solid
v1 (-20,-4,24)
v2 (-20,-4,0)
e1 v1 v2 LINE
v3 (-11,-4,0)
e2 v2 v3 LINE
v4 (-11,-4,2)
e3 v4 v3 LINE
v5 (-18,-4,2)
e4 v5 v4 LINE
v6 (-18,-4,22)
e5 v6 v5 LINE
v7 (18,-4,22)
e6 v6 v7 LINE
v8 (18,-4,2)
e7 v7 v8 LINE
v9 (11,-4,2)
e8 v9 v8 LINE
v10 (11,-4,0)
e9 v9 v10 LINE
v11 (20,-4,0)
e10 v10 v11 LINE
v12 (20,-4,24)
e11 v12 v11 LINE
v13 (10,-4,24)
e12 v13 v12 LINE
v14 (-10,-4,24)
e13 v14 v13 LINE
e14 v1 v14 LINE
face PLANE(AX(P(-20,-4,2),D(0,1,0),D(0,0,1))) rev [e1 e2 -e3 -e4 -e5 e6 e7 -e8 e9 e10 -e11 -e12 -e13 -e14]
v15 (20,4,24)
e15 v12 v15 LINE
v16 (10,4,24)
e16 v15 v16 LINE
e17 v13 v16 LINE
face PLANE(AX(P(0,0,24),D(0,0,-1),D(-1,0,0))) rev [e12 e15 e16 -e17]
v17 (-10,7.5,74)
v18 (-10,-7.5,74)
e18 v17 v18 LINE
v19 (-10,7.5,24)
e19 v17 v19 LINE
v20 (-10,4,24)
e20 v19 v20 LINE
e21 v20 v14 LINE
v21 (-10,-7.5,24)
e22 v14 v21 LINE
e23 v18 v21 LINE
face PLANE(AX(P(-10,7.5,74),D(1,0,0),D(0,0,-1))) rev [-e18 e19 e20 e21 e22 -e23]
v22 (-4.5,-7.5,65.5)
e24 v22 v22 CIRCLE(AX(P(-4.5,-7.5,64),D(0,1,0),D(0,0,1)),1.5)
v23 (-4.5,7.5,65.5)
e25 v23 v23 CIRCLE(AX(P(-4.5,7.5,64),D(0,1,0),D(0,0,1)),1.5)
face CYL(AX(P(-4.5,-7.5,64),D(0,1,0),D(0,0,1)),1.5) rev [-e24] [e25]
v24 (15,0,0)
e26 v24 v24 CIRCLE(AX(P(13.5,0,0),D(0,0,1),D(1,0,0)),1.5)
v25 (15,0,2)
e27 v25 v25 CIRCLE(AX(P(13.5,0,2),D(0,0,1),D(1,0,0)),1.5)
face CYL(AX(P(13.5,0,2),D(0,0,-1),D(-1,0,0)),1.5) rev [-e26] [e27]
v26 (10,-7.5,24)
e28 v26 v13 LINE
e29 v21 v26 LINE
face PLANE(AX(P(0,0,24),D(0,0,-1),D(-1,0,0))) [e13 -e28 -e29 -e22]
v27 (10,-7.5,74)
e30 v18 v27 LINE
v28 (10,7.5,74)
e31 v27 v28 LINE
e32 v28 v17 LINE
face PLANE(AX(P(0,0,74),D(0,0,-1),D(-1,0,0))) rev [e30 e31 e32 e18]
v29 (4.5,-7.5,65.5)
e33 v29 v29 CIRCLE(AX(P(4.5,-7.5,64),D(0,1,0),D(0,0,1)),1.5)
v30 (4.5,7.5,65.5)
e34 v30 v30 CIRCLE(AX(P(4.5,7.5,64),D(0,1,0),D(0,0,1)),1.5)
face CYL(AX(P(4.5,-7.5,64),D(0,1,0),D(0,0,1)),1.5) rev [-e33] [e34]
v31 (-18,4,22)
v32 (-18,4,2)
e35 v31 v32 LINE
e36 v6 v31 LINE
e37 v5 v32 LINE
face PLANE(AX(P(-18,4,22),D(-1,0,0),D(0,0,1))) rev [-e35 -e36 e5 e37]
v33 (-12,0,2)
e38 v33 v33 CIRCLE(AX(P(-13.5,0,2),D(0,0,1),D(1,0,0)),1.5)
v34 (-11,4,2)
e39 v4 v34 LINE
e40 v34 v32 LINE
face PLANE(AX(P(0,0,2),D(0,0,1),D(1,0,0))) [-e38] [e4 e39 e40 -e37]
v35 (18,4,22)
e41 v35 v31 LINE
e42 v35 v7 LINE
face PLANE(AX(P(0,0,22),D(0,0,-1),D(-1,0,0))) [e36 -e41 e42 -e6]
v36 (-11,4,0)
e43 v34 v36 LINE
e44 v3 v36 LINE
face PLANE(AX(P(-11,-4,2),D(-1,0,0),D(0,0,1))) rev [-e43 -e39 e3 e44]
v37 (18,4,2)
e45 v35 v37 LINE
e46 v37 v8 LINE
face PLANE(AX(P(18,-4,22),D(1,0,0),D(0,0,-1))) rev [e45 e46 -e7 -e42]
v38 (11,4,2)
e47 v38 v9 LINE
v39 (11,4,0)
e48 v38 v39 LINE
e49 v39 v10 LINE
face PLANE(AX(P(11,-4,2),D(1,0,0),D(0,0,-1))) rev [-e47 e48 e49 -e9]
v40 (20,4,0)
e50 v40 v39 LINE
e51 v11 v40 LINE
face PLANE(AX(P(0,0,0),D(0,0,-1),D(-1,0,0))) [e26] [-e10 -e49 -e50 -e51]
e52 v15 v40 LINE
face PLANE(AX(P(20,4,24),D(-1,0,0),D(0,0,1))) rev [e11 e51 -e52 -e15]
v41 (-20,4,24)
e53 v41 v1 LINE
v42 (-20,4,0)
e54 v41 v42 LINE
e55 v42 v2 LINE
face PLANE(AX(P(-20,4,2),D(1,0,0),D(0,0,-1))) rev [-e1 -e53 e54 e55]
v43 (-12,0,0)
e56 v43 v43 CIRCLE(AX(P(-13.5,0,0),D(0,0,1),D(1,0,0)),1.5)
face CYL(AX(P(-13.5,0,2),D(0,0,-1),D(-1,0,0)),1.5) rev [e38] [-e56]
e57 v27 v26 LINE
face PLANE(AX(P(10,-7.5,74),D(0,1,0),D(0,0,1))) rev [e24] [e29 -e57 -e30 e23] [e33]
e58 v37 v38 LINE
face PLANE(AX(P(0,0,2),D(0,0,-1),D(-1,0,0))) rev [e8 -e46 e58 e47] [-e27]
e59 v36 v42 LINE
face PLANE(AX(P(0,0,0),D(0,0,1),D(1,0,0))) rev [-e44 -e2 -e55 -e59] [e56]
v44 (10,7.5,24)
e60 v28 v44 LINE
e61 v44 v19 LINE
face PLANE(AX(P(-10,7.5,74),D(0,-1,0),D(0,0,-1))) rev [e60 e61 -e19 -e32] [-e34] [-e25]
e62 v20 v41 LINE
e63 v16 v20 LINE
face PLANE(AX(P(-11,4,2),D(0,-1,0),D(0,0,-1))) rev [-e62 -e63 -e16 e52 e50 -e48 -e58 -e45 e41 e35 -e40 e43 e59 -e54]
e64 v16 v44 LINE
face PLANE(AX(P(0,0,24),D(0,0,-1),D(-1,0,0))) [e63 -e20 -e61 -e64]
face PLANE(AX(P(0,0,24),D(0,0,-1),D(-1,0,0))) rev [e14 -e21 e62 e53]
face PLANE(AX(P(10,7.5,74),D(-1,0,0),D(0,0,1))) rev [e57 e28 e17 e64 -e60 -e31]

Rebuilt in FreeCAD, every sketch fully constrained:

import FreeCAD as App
import Part
import Sketcher

V = App.Vector


def add_polygon(sketch, points):
    """Adds a closed chain of lines whose ends are joined by coincident constraints."""
    first, n = sketch.GeometryCount, len(points)
    for a, b in zip(points, points[1:] + points[:1]):
        sketch.addGeometry(Part.LineSegment(App.Vector(*a, 0), App.Vector(*b, 0)), False)
    for i in range(n):
        sketch.addConstraint(Sketcher.Constraint("Coincident", first + i, 2, first + (i + 1) % n, 1))

doc = App.newDocument("Part")
body = doc.addObject("PartDesign::Body", "Body")

sketch1 = body.newObject("Sketcher::SketchObject", "Sketch")
sketch1.AttachmentSupport = (doc.getObject("XY_Plane"), [""])
sketch1.MapMode = "FlatFace"
add_polygon(sketch1, [(-20, 4), (-20, -4), (-11, -4), (-11, 4)])
sketch1.addGeometry(Part.Circle(V(-13.5, 0, 0), V(0, 0, 1), 1.5), False)
sketch1.addConstraint(Sketcher.Constraint("Vertical", 0))
sketch1.addConstraint(Sketcher.Constraint("Horizontal", 1))
sketch1.addConstraint(Sketcher.Constraint("Vertical", 2))
sketch1.addConstraint(Sketcher.Constraint("Horizontal", 3))
sketch1.addConstraint(Sketcher.Constraint("PointOnObject", 4, 3, -1))
sketch1.addConstraint(Sketcher.Constraint("Diameter", 4, 3.0))
sketch1.addConstraint(Sketcher.Constraint("DistanceX", 1, 1, 1, 2, 9.0))
sketch1.addConstraint(Sketcher.Constraint("DistanceY", 0, 2, 0, 1, 8.0))
sketch1.addConstraint(Sketcher.Constraint("DistanceX", 0, 2, -1, 1, 20.0))
sketch1.addConstraint(Sketcher.Constraint("DistanceY", 0, 2, -1, 1, 4.0))
sketch1.addConstraint(Sketcher.Constraint("DistanceX", 4, 3, -1, 1, 13.5))
pad1 = body.newObject("PartDesign::Pad", "Pad")
pad1.Profile = sketch1
pad1.Length = 2
body2 = doc.addObject("PartDesign::Body", "Body001")

sketch2 = body2.newObject("Sketcher::SketchObject", "Sketch001")
sketch2.AttachmentSupport = (doc.getObject("XY_Plane001"), [""])
sketch2.MapMode = "FlatFace"
add_polygon(sketch2, [(11, 4), (11, -4), (20, -4), (20, 4)])
sketch2.addGeometry(Part.Circle(V(13.5, 0, 0), V(0, 0, 1), 1.5), False)
sketch2.addConstraint(Sketcher.Constraint("Vertical", 0))
sketch2.addConstraint(Sketcher.Constraint("Horizontal", 1))
sketch2.addConstraint(Sketcher.Constraint("Vertical", 2))
sketch2.addConstraint(Sketcher.Constraint("Horizontal", 3))
sketch2.addConstraint(Sketcher.Constraint("PointOnObject", 4, 3, -1))
sketch2.addConstraint(Sketcher.Constraint("Diameter", 4, 3.0))
sketch2.addConstraint(Sketcher.Constraint("DistanceX", 1, 1, 1, 2, 9.0))
sketch2.addConstraint(Sketcher.Constraint("DistanceY", 0, 2, 0, 1, 8.0))
sketch2.addConstraint(Sketcher.Constraint("DistanceX", -1, 1, 0, 2, 11.0))
sketch2.addConstraint(Sketcher.Constraint("DistanceY", 0, 2, -1, 1, 4.0))
sketch2.addConstraint(Sketcher.Constraint("DistanceX", -1, 1, 4, 3, 13.5))
pad2 = body2.newObject("PartDesign::Pad", "Pad001")
pad2.Profile = sketch2
pad2.Length = 2
body.AllowCompound = True
doc.recompute()

boolean = body.newObject("PartDesign::Boolean", "Boolean")
boolean.Type = "Fuse"
boolean.addObjects([body2])

sketch3 = body.newObject("Sketcher::SketchObject", "Sketch002")
sketch3.AttachmentSupport = (doc.getObject("XY_Plane"), [""])
sketch3.MapMode = "FlatFace"
sketch3.AttachmentOffset = App.Placement(V(0, 0, 2), App.Rotation())
add_polygon(sketch3, [(-20, 4), (-20, -4), (-18, -4), (-18, 4)])
add_polygon(sketch3, [(18, 4), (18, -4), (20, -4), (20, 4)])
sketch3.addConstraint(Sketcher.Constraint("Vertical", 0))
sketch3.addConstraint(Sketcher.Constraint("Horizontal", 1))
sketch3.addConstraint(Sketcher.Constraint("Vertical", 2))
sketch3.addConstraint(Sketcher.Constraint("Horizontal", 3))
sketch3.addConstraint(Sketcher.Constraint("Vertical", 4))
sketch3.addConstraint(Sketcher.Constraint("Horizontal", 5))
sketch3.addConstraint(Sketcher.Constraint("Vertical", 6))
sketch3.addConstraint(Sketcher.Constraint("Horizontal", 7))
sketch3.addConstraint(Sketcher.Constraint("Symmetric", 2, 2, 4, 2, -1, 1))
sketch3.addConstraint(Sketcher.Constraint("Symmetric", 0, 2, 6, 2, -1, 1))
sketch3.addConstraint(Sketcher.Constraint("Horizontal", 1, 2, 4, 2))
sketch3.addConstraint(Sketcher.Constraint("DistanceX", 1, 1, 1, 2, 2.0))
sketch3.addConstraint(Sketcher.Constraint("DistanceY", 0, 2, 0, 1, 8.0))
sketch3.addConstraint(Sketcher.Constraint("DistanceX", 0, 2, -1, 1, 20.0))
pad3 = body.newObject("PartDesign::Pad", "Pad002")
pad3.Profile = sketch3
pad3.Length = 20

sketch4 = body.newObject("Sketcher::SketchObject", "Sketch003")
sketch4.AttachmentSupport = (doc.getObject("XY_Plane"), [""])
sketch4.MapMode = "FlatFace"
sketch4.AttachmentOffset = App.Placement(V(0, 0, 22), App.Rotation())
add_polygon(sketch4, [(-20, 4), (-20, -4), (20, -4), (20, 4)])
sketch4.addConstraint(Sketcher.Constraint("Vertical", 0))
sketch4.addConstraint(Sketcher.Constraint("Horizontal", 1))
sketch4.addConstraint(Sketcher.Constraint("Vertical", 2))
sketch4.addConstraint(Sketcher.Constraint("Horizontal", 3))
sketch4.addConstraint(Sketcher.Constraint("Symmetric", 0, 2, 2, 2, -1, 1))
sketch4.addConstraint(Sketcher.Constraint("DistanceX", 1, 1, 1, 2, 40.0))
sketch4.addConstraint(Sketcher.Constraint("DistanceY", 0, 2, 0, 1, 8.0))
pad4 = body.newObject("PartDesign::Pad", "Pad003")
pad4.Profile = sketch4
pad4.Length = 2

sketch5 = body.newObject("Sketcher::SketchObject", "Sketch004")
sketch5.AttachmentSupport = (doc.getObject("XY_Plane"), [""])
sketch5.MapMode = "FlatFace"
sketch5.AttachmentOffset = App.Placement(V(0, 0, 24), App.Rotation())
add_polygon(sketch5, [(-10, 8), (-10, -8), (10, -8), (10, 8)])
sketch5.addConstraint(Sketcher.Constraint("Vertical", 0))
sketch5.addConstraint(Sketcher.Constraint("Horizontal", 1))
sketch5.addConstraint(Sketcher.Constraint("Vertical", 2))
sketch5.addConstraint(Sketcher.Constraint("Horizontal", 3))
sketch5.addConstraint(Sketcher.Constraint("Symmetric", 0, 2, 2, 2, -1, 1))
sketch5.addConstraint(Sketcher.Constraint("DistanceX", 1, 1, 1, 2, 20.0))
sketch5.addConstraint(Sketcher.Constraint("DistanceY", 0, 2, 0, 1, 15.0))
pad5 = body.newObject("PartDesign::Pad", "Pad004")
pad5.Profile = sketch5
pad5.Length = 50

sketch6 = body.newObject("Sketcher::SketchObject", "Sketch005")
sketch6.AttachmentSupport = (doc.getObject("XZ_Plane"), [""])
sketch6.MapMode = "FlatFace"
sketch6.AttachmentOffset = App.Placement(V(0, 0, -7.5), App.Rotation())
sketch6.addGeometry(Part.Circle(V(-4.5, 64, 0), V(0, 0, 1), 1.5), False)
sketch6.addGeometry(Part.Circle(V(4.5, 64, 0), V(0, 0, 1), 1.5), False)
sketch6.addConstraint(Sketcher.Constraint("Equal", 0, 1))
sketch6.addConstraint(Sketcher.Constraint("Symmetric", 0, 3, 1, 3, -2))
sketch6.addConstraint(Sketcher.Constraint("Diameter", 0, 3.0))
sketch6.addConstraint(Sketcher.Constraint("DistanceY", -1, 1, 0, 3, 64.0))
sketch6.addConstraint(Sketcher.Constraint("DistanceX", 0, 3, 1, 3, 9.0))
pocket1 = body.newObject("PartDesign::Pocket", "Pocket")
pocket1.Profile = sketch6
pocket1.Type = "ThroughAll"
pocket1.Reversed = True

doc.recompute()
